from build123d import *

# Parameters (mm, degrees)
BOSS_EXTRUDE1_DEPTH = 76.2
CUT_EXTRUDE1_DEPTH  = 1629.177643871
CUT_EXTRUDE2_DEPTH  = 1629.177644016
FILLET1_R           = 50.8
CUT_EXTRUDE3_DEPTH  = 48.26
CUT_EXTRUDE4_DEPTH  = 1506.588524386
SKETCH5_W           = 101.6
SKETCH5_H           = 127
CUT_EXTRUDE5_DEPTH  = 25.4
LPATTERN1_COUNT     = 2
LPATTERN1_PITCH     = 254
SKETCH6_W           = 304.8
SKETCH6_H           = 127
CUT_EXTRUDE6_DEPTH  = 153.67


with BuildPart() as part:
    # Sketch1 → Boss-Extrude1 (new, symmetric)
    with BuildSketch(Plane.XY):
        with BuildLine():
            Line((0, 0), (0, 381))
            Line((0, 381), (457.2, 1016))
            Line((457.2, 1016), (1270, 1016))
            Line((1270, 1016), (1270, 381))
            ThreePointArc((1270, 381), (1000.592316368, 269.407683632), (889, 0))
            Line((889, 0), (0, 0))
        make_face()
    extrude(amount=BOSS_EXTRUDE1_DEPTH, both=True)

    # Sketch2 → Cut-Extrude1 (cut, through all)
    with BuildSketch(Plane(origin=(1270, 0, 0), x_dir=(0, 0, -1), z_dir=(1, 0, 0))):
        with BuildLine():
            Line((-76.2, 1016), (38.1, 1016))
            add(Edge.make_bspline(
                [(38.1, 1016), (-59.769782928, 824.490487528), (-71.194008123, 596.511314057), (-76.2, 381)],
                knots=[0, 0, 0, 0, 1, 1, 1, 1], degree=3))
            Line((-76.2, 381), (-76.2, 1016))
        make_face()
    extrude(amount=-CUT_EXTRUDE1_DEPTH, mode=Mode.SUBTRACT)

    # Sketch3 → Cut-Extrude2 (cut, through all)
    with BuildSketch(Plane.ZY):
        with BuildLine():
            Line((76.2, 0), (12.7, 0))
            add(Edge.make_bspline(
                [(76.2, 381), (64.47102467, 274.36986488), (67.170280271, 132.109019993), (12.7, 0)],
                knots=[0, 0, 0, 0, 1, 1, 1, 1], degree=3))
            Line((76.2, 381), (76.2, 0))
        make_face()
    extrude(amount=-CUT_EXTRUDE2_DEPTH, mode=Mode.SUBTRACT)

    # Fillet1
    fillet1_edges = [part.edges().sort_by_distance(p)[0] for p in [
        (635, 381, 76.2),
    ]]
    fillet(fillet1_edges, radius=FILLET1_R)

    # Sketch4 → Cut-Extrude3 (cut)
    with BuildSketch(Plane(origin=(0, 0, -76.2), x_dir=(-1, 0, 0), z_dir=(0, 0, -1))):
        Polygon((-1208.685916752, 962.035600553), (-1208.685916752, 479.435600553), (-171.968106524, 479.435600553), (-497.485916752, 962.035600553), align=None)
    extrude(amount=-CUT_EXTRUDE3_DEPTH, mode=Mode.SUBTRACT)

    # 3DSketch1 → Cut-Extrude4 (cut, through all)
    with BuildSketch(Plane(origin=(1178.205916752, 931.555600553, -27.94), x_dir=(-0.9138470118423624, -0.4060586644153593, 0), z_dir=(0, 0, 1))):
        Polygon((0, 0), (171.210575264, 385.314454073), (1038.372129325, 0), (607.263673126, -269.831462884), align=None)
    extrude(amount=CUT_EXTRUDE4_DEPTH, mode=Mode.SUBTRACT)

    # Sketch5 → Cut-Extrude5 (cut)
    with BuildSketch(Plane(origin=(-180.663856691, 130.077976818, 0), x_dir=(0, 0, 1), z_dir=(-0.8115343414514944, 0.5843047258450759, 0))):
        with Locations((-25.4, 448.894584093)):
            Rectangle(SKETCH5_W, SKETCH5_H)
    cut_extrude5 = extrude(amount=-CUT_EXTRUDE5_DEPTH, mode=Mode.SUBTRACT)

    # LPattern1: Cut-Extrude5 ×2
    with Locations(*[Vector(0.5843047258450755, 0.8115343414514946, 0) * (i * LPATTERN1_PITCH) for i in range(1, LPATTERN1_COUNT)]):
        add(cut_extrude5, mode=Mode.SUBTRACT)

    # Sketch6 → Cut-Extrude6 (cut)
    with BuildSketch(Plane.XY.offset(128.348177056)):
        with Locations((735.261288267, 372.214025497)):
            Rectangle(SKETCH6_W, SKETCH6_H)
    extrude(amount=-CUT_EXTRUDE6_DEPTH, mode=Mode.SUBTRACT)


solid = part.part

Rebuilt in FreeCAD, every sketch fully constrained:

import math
import FreeCAD as App
import Part
import Sketcher

V = App.Vector
Q = App.Units.Quantity


def edges_at(feature, points):
    """Names of the edges that pass closest to the given points."""
    edges = feature.Shape.Edges
    near = lambda p: min(range(len(edges)), key=lambda i: edges[i].distToShape(Part.Vertex(*p))[0])
    return sorted({f"Edge{near(p) + 1}" for p in points})


def add_polygon(sketch, points):
    """Adds a closed chain of lines whose ends are joined by coincident constraints."""
    first, n = sketch.GeometryCount, len(points)
    for a, b in zip(points, points[1:] + points[:1]):
        sketch.addGeometry(Part.LineSegment(App.Vector(*a, 0), App.Vector(*b, 0)), False)
    for i in range(n):
        sketch.addConstraint(Sketcher.Constraint("Coincident", first + i, 2, first + (i + 1) % n, 1))

doc = App.newDocument("Part")
body = doc.addObject("PartDesign::Body", "Body")

# Sketch on XY plane
sketch1 = body.newObject("Sketcher::SketchObject", "Sketch")
sketch1.AttachmentSupport = (doc.getObject("XY_Plane"), [""])
sketch1.MapMode = "FlatFace"
sketch1.addGeometry([
    Part.LineSegment(V(0, 381, 0), V(0, 0, 0)),  # 0
    Part.LineSegment(V(0, 0, 0), V(889, 0, 0)),  # 1
    Part.ArcOfCircle(Part.Circle(V(1270, 0, 0), V(0, 0, 1), 381), math.radians(90), math.radians(180)),  # 2
    Part.LineSegment(V(1270, 381, 0), V(1270, 1016, 0)),  # 3
    Part.LineSegment(V(1270, 1016, 0), V(457.2, 1016, 0)),  # 4
    Part.LineSegment(V(457.2, 1016, 0), V(0, 381, 0)),  # 5
], False)
sketch1.addConstraint([
    Sketcher.Constraint("Coincident", 0, 2, 1, 1),
    Sketcher.Constraint("Coincident", 1, 2, 2, 2),
    Sketcher.Constraint("Coincident", 2, 1, 3, 1),
    Sketcher.Constraint("Coincident", 3, 2, 4, 1),
    Sketcher.Constraint("Coincident", 4, 2, 5, 1),
    Sketcher.Constraint("Coincident", 5, 2, 0, 1),
    Sketcher.Constraint("Vertical", 0),
    Sketcher.Constraint("Horizontal", 1),
    Sketcher.Constraint("Vertical", 3),
    Sketcher.Constraint("Horizontal", 4),
    Sketcher.Constraint("Coincident", 0, 2, -1, 1),
    Sketcher.Constraint("PointOnObject", 2, 3, -1),
    Sketcher.Constraint("Horizontal", 2, 1, 5, 2),
    Sketcher.Constraint("Radius", 2, Q("15 in")),
    Sketcher.Constraint("DistanceX", 1, 1, 1, 2, Q("35 in")),
    Sketcher.Constraint("DistanceX", 4, 2, 4, 1, Q("32 in")),
    Sketcher.Constraint("DistanceY", 3, 1, 3, 2, Q("25 in")),
    Sketcher.Constraint("DistanceX", -1, 1, 3, 2, Q("50 in")),
])
pad1 = body.newObject("PartDesign::Pad", "Pad")
pad1.Profile = sketch1
pad1.Length = Q("6 in")
pad1.Midplane = True

# Sketch on YZ plane
sketch2 = body.newObject("Sketcher::SketchObject", "Sketch001")
sketch2.AttachmentSupport = (doc.getObject("YZ_Plane"), [""])
sketch2.MapMode = "FlatFace"
sketch2.AttachmentOffset = App.Placement(V(0, 0, 50 * 25.4), App.Rotation())
sketch2.addGeometry([
    Part.LineSegment(V(1016, -38.1, 0), V(1016, 76.2, 0)),
    Part.LineSegment(V(1016, 76.2, 0), V(381, 76.2, 0)),
    Part.BSplineCurve([V(1016, -38.1, 0), V(824.490488, 59.769783, 0), V(596.511314, 71.194008, 0), V(381, 76.2, 0)], [4, 4], [0, 1], False, 3, [1, 1, 1, 1], False),
], False)
sketch2.addConstraint([
    Sketcher.Constraint("Block", 2),
    Sketcher.Constraint("Coincident", 0, 2, 1, 1),
    Sketcher.Constraint("Coincident", 1, 2, 2, 2),
    Sketcher.Constraint("Coincident", 2, 1, 0, 1),
    Sketcher.Constraint("Vertical", 0),
    Sketcher.Constraint("Horizontal", 1),
])
pocket1 = body.newObject("PartDesign::Pocket", "Pocket")
pocket1.Profile = sketch2
pocket1.Type = "ThroughAll"

# Sketch on YZ plane
sketch3 = body.newObject("Sketcher::SketchObject", "Sketch002")
sketch3.AttachmentSupport = (doc.getObject("YZ_Plane"), [""])
sketch3.MapMode = "FlatFace"
sketch3.addGeometry([
    Part.LineSegment(V(0, 12.7, 0), V(0, 76.2, 0)),
    Part.LineSegment(V(0, 76.2, 0), V(381, 76.2, 0)),
    Part.BSplineCurve([V(381, 76.2, 0), V(274.369865, 64.471025, 0), V(132.10902, 67.17028, 0), V(0, 12.7, 0)], [4, 4], [0, 1], False, 3, [1, 1, 1, 1], False),
], False)
sketch3.addConstraint([
    Sketcher.Constraint("Block", 2),
    Sketcher.Constraint("Coincident", 0, 2, 1, 1),
    Sketcher.Constraint("Coincident", 1, 2, 2, 1),
    Sketcher.Constraint("Coincident", 2, 2, 0, 1),
    Sketcher.Constraint("Vertical", 0),
    Sketcher.Constraint("Horizontal", 1),
])
pocket2 = body.newObject("PartDesign::Pocket", "Pocket001")
pocket2.Profile = sketch3
pocket2.Type = "ThroughAll"
pocket2.Reversed = True
doc.recompute()

fillet = body.newObject("PartDesign::Fillet", "Fillet")
fillet.Base = (pocket2, edges_at(pocket2, [(635, 381, 76.2)]))
fillet.Radius = Q("2 in")

# Sketch on XY plane
sketch4 = body.newObject("Sketcher::SketchObject", "Sketch003")
sketch4.AttachmentSupport = (doc.getObject("XY_Plane"), [""])
sketch4.MapMode = "FlatFace"
sketch4.AttachmentOffset = App.Placement(V(0, 0, -3 * 25.4), App.Rotation())
add_polygon(sketch4, [(1208.685917, 962.035601), (1208.685917, 479.435601), (171.968107, 479.435601), (497.485917, 962.035601)])  # lines 0-3
sketch4.addConstraint([
    Sketcher.Constraint("Vertical", 0),
    Sketcher.Constraint("Horizontal", 1),
    Sketcher.Constraint("Horizontal", 3),
    Sketcher.Constraint("DistanceX", 3, 1, 3, 2, Q("28 in")),
    Sketcher.Constraint("DistanceY", 0, 2, 0, 1, Q("19 in")),
    Sketcher.Constraint("Angle", 2, Q("56 deg")),
    Sketcher.Constraint("DistanceY", -1, 1, 0, 2, Q("479.435601 mm")),
    Sketcher.Constraint("DistanceX", -1, 1, 0, 2, Q("1208.685917 mm")),
])
pocket3 = body.newObject("PartDesign::Pocket", "Pocket002")
pocket3.Profile = sketch4
pocket3.Length = Q("1.9 in")
pocket3.Reversed = True

# Sketch on XY plane
sketch5 = body.newObject("Sketcher::SketchObject", "Sketch004")
sketch5.AttachmentSupport = (doc.getObject("XY_Plane"), [""])
sketch5.MapMode = "FlatFace"
sketch5.AttachmentOffset = App.Placement(V(0, 0, -1.1 * 25.4), App.Rotation())
add_polygon(sketch5, [(1178.205917, 509.915601), (1178.205917, 931.555601), (513.69242, 931.555601), (229.292649, 509.915601)])  # lines 0-3
sketch5.addConstraint([
    Sketcher.Constraint("Vertical", 0),
    Sketcher.Constraint("Horizontal", 1),
    Sketcher.Constraint("Horizontal", 3),
    Sketcher.Constraint("DistanceY", 0, 1, 0, 2, Q("16.6 in")),
    Sketcher.Constraint("Angle", 2, Q("-124 deg")),
    Sketcher.Constraint("DistanceY", -1, 1, 0, 2, Q("931.555601 mm")),
    Sketcher.Constraint("DistanceX", 1, 2, 1, 1, Q("664.513497 mm")),
    Sketcher.Constraint("DistanceX", -1, 1, 1, 2, Q("513.69242 mm")),
])
pocket4 = body.newObject("PartDesign::Pocket", "Pocket003")
pocket4.Profile = sketch5
pocket4.Type = "ThroughAll"
pocket4.Reversed = True

# Sketch on an angled plane
sketch6 = body.newObject("Sketcher::SketchObject", "Sketch005")
sketch6.Placement = App.Placement(V(-180.663857, 130.077977, 0), App.Rotation(V(0, 0, 1), V(0.584304726, 0.811534341, 0), V(-0.811534341, 0.584304726, 0), "ZXY"))
add_polygon(sketch6, [(-76.2, 512.394584), (-76.2, 385.394584), (25.4, 385.394584), (25.4, 512.394584)])  # lines 0-3
sketch6.addConstraint([
    Sketcher.Constraint("Vertical", 0),
    Sketcher.Constraint("Horizontal", 1),
    Sketcher.Constraint("Vertical", 2),
    Sketcher.Constraint("Horizontal", 3),
    Sketcher.Constraint("DistanceX", 1, 1, 1, 2, Q("4 in")),
    Sketcher.Constraint("DistanceY", 0, 2, 0, 1, Q("5 in")),
    Sketcher.Constraint("DistanceX", 0, 2, -1, 1, Q("3 in")),
    Sketcher.Constraint("DistanceY", -1, 1, 0, 2, Q("385.394584 mm")),
])
pocket5 = body.newObject("PartDesign::Pocket", "Pocket004")
pocket5.Profile = sketch6
pocket5.Length = Q("1 in")
doc.recompute()

datumline = body.newObject("PartDesign::Line", "DatumLine")
datumline.Placement = App.Placement(V(0, 0, 0), App.Rotation(V(0, 0, 1), V(0.584304726, 0.811534341, 0)))
linearpattern = body.newObject("PartDesign::LinearPattern", "LinearPattern")
linearpattern.Originals = [pocket5]
linearpattern.Direction = (datumline, [""])
linearpattern.Mode = "offset"
linearpattern.Offset = Q("10 in")
linearpattern.Occurrences = 2
body.Tip = linearpattern

# Sketch on XY plane
sketch7 = body.newObject("Sketcher::SketchObject", "Sketch006")
sketch7.AttachmentSupport = (doc.getObject("XY_Plane"), [""])
sketch7.MapMode = "FlatFace"
sketch7.AttachmentOffset = App.Placement(V(0, 0, 128.348177), App.Rotation())
add_polygon(sketch7, [(582.861288, 435.714025), (582.861288, 308.714025), (887.661288, 308.714025), (887.661288, 435.714025)])  # lines 0-3
sketch7.addConstraint([
    Sketcher.Constraint("Vertical", 0),
    Sketcher.Constraint("Horizontal", 1),
    Sketcher.Constraint("Vertical", 2),
    Sketcher.Constraint("Horizontal", 3),
    Sketcher.Constraint("DistanceX", 1, 1, 1, 2, Q("12 in")),
    Sketcher.Constraint("DistanceY", 0, 2, 0, 1, Q("5 in")),
    Sketcher.Constraint("DistanceX", -1, 1, 0, 2, Q("582.861288 mm")),
    Sketcher.Constraint("DistanceY", -1, 1, 0, 2, Q("308.714025 mm")),
])
pocket6 = body.newObject("PartDesign::Pocket", "Pocket005")
pocket6.Profile = sketch7
pocket6.Length = Q("6.05 in")

doc.recompute()
